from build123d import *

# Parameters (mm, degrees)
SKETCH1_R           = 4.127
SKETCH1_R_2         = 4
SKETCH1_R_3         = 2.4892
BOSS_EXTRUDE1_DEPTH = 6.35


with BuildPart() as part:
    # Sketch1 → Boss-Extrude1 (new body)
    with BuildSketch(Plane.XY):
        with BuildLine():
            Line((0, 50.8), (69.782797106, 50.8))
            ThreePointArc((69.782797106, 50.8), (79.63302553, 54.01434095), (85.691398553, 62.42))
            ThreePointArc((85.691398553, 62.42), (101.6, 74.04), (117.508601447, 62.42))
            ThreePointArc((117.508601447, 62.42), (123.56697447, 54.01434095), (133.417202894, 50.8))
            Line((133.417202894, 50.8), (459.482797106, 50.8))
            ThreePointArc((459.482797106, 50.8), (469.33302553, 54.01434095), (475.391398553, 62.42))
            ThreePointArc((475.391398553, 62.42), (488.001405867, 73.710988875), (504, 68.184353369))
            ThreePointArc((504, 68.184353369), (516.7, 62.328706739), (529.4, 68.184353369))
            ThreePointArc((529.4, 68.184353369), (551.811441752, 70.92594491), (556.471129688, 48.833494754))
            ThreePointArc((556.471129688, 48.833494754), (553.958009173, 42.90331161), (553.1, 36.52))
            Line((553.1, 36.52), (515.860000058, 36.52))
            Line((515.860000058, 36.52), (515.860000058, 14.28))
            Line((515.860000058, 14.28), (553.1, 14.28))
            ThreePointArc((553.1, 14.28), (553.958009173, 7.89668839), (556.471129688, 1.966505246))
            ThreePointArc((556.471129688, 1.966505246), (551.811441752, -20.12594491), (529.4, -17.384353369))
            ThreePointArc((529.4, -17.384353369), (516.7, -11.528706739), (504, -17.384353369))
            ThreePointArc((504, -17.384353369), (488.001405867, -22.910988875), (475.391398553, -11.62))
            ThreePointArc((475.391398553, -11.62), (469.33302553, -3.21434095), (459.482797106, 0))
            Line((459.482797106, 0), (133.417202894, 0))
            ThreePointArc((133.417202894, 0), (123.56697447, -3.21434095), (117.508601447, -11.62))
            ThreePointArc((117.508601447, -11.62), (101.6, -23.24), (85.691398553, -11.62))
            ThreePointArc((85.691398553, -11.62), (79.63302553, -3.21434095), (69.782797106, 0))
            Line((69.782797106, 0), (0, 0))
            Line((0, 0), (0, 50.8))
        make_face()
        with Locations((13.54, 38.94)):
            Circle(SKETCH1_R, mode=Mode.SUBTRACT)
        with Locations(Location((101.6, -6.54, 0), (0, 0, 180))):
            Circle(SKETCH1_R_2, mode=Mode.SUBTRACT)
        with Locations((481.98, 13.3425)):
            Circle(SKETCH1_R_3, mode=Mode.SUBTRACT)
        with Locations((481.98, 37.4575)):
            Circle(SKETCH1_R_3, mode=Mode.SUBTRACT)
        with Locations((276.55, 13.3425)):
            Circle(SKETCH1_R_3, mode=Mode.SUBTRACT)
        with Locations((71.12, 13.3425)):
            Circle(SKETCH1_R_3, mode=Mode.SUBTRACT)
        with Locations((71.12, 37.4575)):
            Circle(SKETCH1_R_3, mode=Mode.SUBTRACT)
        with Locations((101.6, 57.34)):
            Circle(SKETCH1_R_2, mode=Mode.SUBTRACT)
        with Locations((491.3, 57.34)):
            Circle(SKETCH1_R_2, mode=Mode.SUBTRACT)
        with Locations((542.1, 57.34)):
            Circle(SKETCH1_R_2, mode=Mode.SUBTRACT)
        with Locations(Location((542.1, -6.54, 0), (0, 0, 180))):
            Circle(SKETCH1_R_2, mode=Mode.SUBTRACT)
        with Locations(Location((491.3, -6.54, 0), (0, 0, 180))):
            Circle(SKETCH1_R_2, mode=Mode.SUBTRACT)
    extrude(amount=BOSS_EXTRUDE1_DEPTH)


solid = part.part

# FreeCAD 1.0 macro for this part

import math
import FreeCAD as App
import Part
import Sketcher
Q = App.Units.Quantity

doc = App.newDocument("Part")
params = doc.addObject("Spreadsheet::Sheet", "Params")
for row, (alias, value) in enumerate([
    ("sketch1_height", "2 in"),
    ("sketch1_diameter", "0.196 in"),
    ("pad1_length", "0.25 in"),
], start=1):
    params.set(f"A{row}", alias)
    params.set(f"B{row}", "=" + value)
    params.setAlias(f"B{row}", alias)

body = doc.addObject("PartDesign::Body", "Body")

# Sketch on XY plane
sketch1 = doc.addObject("Sketcher::SketchObject", "Sketch")
body.addObject(sketch1)
sketch1.AttachmentSupport = (doc.XY_Plane, [""])
sketch1.MapMode = "FlatFace"
sketch1.addGeometry([
    Part.LineSegment(App.Vector(69.8, 50.8, 0), App.Vector(0, 50.8, 0)),  # 0
    Part.LineSegment(App.Vector(0, 50.8, 0), App.Vector(0, 0, 0)),  # 1
    Part.LineSegment(App.Vector(0, 0, 0), App.Vector(69.8, 0, 0)),  # 2
    Part.ArcOfCircle(Part.Circle(App.Vector(69.8, -16.7, 0), App.Vector(0, 0, 1), 16.7), math.radians(18), math.radians(90)),  # 3
    Part.ArcOfCircle(Part.Circle(App.Vector(101.6, -6.5, 0), App.Vector(0, 0, 1), 16.7), math.radians(-162), math.radians(-18)),  # 4
    Part.ArcOfCircle(Part.Circle(App.Vector(133.4, -16.7, 0), App.Vector(0, 0, 1), 16.7), math.radians(90), math.radians(162)),  # 5
    Part.LineSegment(App.Vector(133.4, 0, 0), App.Vector(459.5, 0, 0)),  # 6
    Part.ArcOfCircle(Part.Circle(App.Vector(459.5, -16.7, 0), App.Vector(0, 0, 1), 16.7), math.radians(18), math.radians(90)),  # 7
    Part.ArcOfCircle(Part.Circle(App.Vector(491.3, -6.5, 0), App.Vector(0, 0, 1), 16.7), math.radians(-162), math.radians(-40)),  # 8
    Part.ArcOfCircle(Part.Circle(App.Vector(516.7, -28.2, 0), App.Vector(0, 0, 1), 16.7), math.radians(40), math.radians(140)),  # 9
    Part.ArcOfCircle(Part.Circle(App.Vector(542.1, -6.5, 0), App.Vector(0, 0, 1), 16.7), math.radians(-140), math.radians(31)),  # 10
    Part.ArcOfCircle(Part.Circle(App.Vector(577.3, 14.3, 0), App.Vector(0, 0, 1), 24.2), math.radians(-180), math.radians(-149)),  # 11
    Part.LineSegment(App.Vector(553.1, 14.3, 0), App.Vector(515.9, 14.3, 0)),  # 12
    Part.LineSegment(App.Vector(515.9, 14.3, 0), App.Vector(515.9, 36.5, 0)),  # 13
    Part.LineSegment(App.Vector(515.9, 36.5, 0), App.Vector(553.1, 36.5, 0)),  # 14
    Part.ArcOfCircle(Part.Circle(App.Vector(577.3, 36.5, 0), App.Vector(0, 0, 1), 24.2), math.radians(149), math.radians(180)),  # 15
    Part.ArcOfCircle(Part.Circle(App.Vector(542.1, 57.3, 0), App.Vector(0, 0, 1), 16.7), math.radians(-31), math.radians(140)),  # 16
    Part.ArcOfCircle(Part.Circle(App.Vector(516.7, 79, 0), App.Vector(0, 0, 1), 16.7), math.radians(-140), math.radians(-40)),  # 17
    Part.ArcOfCircle(Part.Circle(App.Vector(491.3, 57.3, 0), App.Vector(0, 0, 1), 16.7), math.radians(40), math.radians(162)),  # 18
    Part.ArcOfCircle(Part.Circle(App.Vector(459.5, 67.5, 0), App.Vector(0, 0, 1), 16.7), math.radians(-90), math.radians(-18)),  # 19
    Part.LineSegment(App.Vector(459.5, 50.8, 0), App.Vector(133.4, 50.8, 0)),  # 20
    Part.ArcOfCircle(Part.Circle(App.Vector(133.4, 67.5, 0), App.Vector(0, 0, 1), 16.7), math.radians(-162), math.radians(-90)),  # 21
    Part.ArcOfCircle(Part.Circle(App.Vector(101.6, 57.3, 0), App.Vector(0, 0, 1), 16.7), math.radians(18), math.radians(162)),  # 22
    Part.ArcOfCircle(Part.Circle(App.Vector(69.8, 67.5, 0), App.Vector(0, 0, 1), 16.7), math.radians(-90), math.radians(-18)),  # 23
    Part.Circle(App.Vector(542.1, -6.5, 0), App.Vector(0, 0, 1), 4),  # 24
    Part.Circle(App.Vector(491.3, -6.5, 0), App.Vector(0, 0, 1), 4),  # 25
    Part.Circle(App.Vector(482, 13.3, 0), App.Vector(0, 0, 1), 2.5),  # 26
    Part.Circle(App.Vector(101.6, -6.5, 0), App.Vector(0, 0, 1), 4),  # 27
    Part.Circle(App.Vector(276.6, 13.3, 0), App.Vector(0, 0, 1), 2.5),  # 28
    Part.Circle(App.Vector(71.1, 13.3, 0), App.Vector(0, 0, 1), 2.5),  # 29
    Part.Circle(App.Vector(482, 37.5, 0), App.Vector(0, 0, 1), 2.5),  # 30
    Part.Circle(App.Vector(542.1, 57.3, 0), App.Vector(0, 0, 1), 4),  # 31
    Part.Circle(App.Vector(491.3, 57.3, 0), App.Vector(0, 0, 1), 4),  # 32
    Part.Circle(App.Vector(71.1, 37.5, 0), App.Vector(0, 0, 1), 2.5),  # 33
    Part.Circle(App.Vector(13.5, 38.9, 0), App.Vector(0, 0, 1), 4.1),  # 34
    Part.Circle(App.Vector(101.6, 57.3, 0), App.Vector(0, 0, 1), 4),  # 35
], False)
sketch1.addConstraint([
    Sketcher.Constraint("Coincident", 0, 2, 1, 1),
    Sketcher.Constraint("Coincident", 1, 2, 2, 1),
    Sketcher.Constraint("Tangent", 2, 2, 3, 2),
    Sketcher.Constraint("Tangent", 3, 1, 4, 1),
    Sketcher.Constraint("Tangent", 4, 2, 5, 2),
    Sketcher.Constraint("Tangent", 5, 1, 6, 1),
    Sketcher.Constraint("Tangent", 6, 2, 7, 2),
    Sketcher.Constraint("Tangent", 7, 1, 8, 1),
    Sketcher.Constraint("Tangent", 8, 2, 9, 2),
    Sketcher.Constraint("Tangent", 9, 1, 10, 1),
    Sketcher.Constraint("Tangent", 10, 2, 11, 2),
    Sketcher.Constraint("Coincident", 11, 1, 12, 1),
    Sketcher.Constraint("Coincident", 12, 2, 13, 1),
    Sketcher.Constraint("Coincident", 13, 2, 14, 1),
    Sketcher.Constraint("Coincident", 14, 2, 15, 2),
    Sketcher.Constraint("Tangent", 15, 1, 16, 1),
    Sketcher.Constraint("Tangent", 16, 2, 17, 2),
    Sketcher.Constraint("Tangent", 17, 1, 18, 1),
    Sketcher.Constraint("Tangent", 18, 2, 19, 2),
    Sketcher.Constraint("Tangent", 19, 1, 20, 1),
    Sketcher.Constraint("Tangent", 20, 2, 21, 2),
    Sketcher.Constraint("Tangent", 21, 1, 22, 1),
    Sketcher.Constraint("Tangent", 22, 2, 23, 2),
    Sketcher.Constraint("Tangent", 23, 1, 0, 1),
    Sketcher.Constraint("Horizontal", 0),
    Sketcher.Constraint("Vertical", 1),
    Sketcher.Constraint("Horizontal", 2),
    Sketcher.Constraint("Horizontal", 6),
    Sketcher.Constraint("Horizontal", 12),
    Sketcher.Constraint("Vertical", 13),
    Sketcher.Constraint("Horizontal", 14),
    Sketcher.Constraint("Horizontal", 20),
    Sketcher.Constraint("Coincident", 1, 2, -1, 1),
    Sketcher.Constraint("Coincident", 24, 3, 10, 3),
    Sketcher.Constraint("Coincident", 25, 3, 8, 3),
    Sketcher.Constraint("Coincident", 27, 3, 4, 3),
    Sketcher.Constraint("Coincident", 31, 3, 16, 3),
    Sketcher.Constraint("Coincident", 32, 3, 18, 3),
    Sketcher.Constraint("Coincident", 35, 3, 22, 3),
    Sketcher.Constraint("Equal", 3, 4),
    Sketcher.Constraint("Equal", 4, 5),
    Sketcher.Constraint("Equal", 5, 7),
    Sketcher.Constraint("Equal", 7, 8),
    Sketcher.Constraint("Equal", 8, 9),
    Sketcher.Constraint("Equal", 9, 10),
    Sketcher.Constraint("Equal", 11, 15),
    Sketcher.Constraint("Equal", 10, 16),
    Sketcher.Constraint("Equal", 16, 17),
    Sketcher.Constraint("Equal", 17, 18),
    Sketcher.Constraint("Equal", 18, 19),
    Sketcher.Constraint("Equal", 19, 21),
    Sketcher.Constraint("Equal", 21, 22),
    Sketcher.Constraint("Equal", 22, 23),
    Sketcher.Constraint("Equal", 24, 25),
    Sketcher.Constraint("Equal", 25, 27),
    Sketcher.Constraint("Equal", 26, 28),
    Sketcher.Constraint("Equal", 28, 29),
    Sketcher.Constraint("Equal", 29, 30),
    Sketcher.Constraint("Equal", 27, 31),
    Sketcher.Constraint("Equal", 31, 32),
    Sketcher.Constraint("Equal", 30, 33),
    Sketcher.Constraint("Equal", 32, 35),
    Sketcher.Constraint("PointOnObject", 5, 1, -1),
    Sketcher.Constraint("Horizontal", 4, 3, 8, 3),
    Sketcher.Constraint("Horizontal", 8, 3, 10, 3),
    Sketcher.Constraint("Horizontal", 16, 3, 18, 3),
    Sketcher.Constraint("Horizontal", 18, 3, 22, 3),
    Sketcher.Constraint("Horizontal", 21, 3, 23, 3),
    Sketcher.Constraint("Horizontal", 26, 3, 28, 3),
    Sketcher.Constraint("Horizontal", 28, 3, 29, 3),
    Sketcher.Constraint("Horizontal", 30, 3, 33, 3),
    Sketcher.Constraint("Horizontal", 15, 3, 13, 2),
    Sketcher.Constraint("Vertical", 11, 3, 15, 3),
    Sketcher.Constraint("Vertical", 10, 3, 16, 3),
    Sketcher.Constraint("Vertical", 9, 3, 17, 3),
    Sketcher.Constraint("Vertical", 7, 3, 19, 3),
    Sketcher.Constraint("Vertical", 5, 3, 21, 3),
    Sketcher.Constraint("Vertical", 26, 3, 30, 3),
    Sketcher.Constraint("Vertical", 29, 3, 33, 3),
    Sketcher.Constraint("DistanceY", 1, 2, 1, 1, Q("2 in")),
    Sketcher.Constraint("Diameter", 26, Q("0.196 in")),
    Sketcher.Constraint("DistanceX", -1, 1, 4, 3, Q("4 in")),
    Sketcher.Constraint("DistanceX", 8, 3, 9, 3, Q("1 in")),
    Sketcher.Constraint("DistanceX", -1, 1, 29, 3, Q("2.8 in")),
    Sketcher.Constraint("DistanceY", 3, 3, 4, 3, Q("0.4 in")),
    Sketcher.Constraint("Diameter", 24, 8.0),
    Sketcher.Constraint("Diameter", 34, 8.254),
    Sketcher.Constraint("Radius", 3, 16.7),
    Sketcher.Constraint("DistanceX", 12, 2, 12, 1, 37.24),
    Sketcher.Constraint("DistanceY", 13, 1, 13, 2, 22.24),
    Sketcher.Constraint("Radius", 11, 24.173895),
    Sketcher.Constraint("DistanceX", -1, 1, 8, 3, 491.3),
    Sketcher.Constraint("DistanceY", -1, 1, 11, 3, 14.28),
    Sketcher.Constraint("DistanceX", -1, 1, 26, 3, 481.98),
    Sketcher.Constraint("DistanceY", -1, 1, 26, 3, 13.3425),
    Sketcher.Constraint("DistanceX", -1, 1, 28, 3, 276.55),
    Sketcher.Constraint("DistanceY", -1, 1, 30, 3, 37.4575),
    Sketcher.Constraint("DistanceX", -1, 1, 34, 3, 13.54),
    Sketcher.Constraint("DistanceY", -1, 1, 34, 3, 38.94),
])
sketch1.setExpression("Constraints[79]", "Params.sketch1_height")
sketch1.setExpression("Constraints[80]", "Params.sketch1_diameter")
pad1 = doc.addObject("PartDesign::Pad", "Pad")
body.addObject(pad1)
pad1.Profile = sketch1
pad1.setExpression("Length", "Params.pad1_length")

doc.recompute()
